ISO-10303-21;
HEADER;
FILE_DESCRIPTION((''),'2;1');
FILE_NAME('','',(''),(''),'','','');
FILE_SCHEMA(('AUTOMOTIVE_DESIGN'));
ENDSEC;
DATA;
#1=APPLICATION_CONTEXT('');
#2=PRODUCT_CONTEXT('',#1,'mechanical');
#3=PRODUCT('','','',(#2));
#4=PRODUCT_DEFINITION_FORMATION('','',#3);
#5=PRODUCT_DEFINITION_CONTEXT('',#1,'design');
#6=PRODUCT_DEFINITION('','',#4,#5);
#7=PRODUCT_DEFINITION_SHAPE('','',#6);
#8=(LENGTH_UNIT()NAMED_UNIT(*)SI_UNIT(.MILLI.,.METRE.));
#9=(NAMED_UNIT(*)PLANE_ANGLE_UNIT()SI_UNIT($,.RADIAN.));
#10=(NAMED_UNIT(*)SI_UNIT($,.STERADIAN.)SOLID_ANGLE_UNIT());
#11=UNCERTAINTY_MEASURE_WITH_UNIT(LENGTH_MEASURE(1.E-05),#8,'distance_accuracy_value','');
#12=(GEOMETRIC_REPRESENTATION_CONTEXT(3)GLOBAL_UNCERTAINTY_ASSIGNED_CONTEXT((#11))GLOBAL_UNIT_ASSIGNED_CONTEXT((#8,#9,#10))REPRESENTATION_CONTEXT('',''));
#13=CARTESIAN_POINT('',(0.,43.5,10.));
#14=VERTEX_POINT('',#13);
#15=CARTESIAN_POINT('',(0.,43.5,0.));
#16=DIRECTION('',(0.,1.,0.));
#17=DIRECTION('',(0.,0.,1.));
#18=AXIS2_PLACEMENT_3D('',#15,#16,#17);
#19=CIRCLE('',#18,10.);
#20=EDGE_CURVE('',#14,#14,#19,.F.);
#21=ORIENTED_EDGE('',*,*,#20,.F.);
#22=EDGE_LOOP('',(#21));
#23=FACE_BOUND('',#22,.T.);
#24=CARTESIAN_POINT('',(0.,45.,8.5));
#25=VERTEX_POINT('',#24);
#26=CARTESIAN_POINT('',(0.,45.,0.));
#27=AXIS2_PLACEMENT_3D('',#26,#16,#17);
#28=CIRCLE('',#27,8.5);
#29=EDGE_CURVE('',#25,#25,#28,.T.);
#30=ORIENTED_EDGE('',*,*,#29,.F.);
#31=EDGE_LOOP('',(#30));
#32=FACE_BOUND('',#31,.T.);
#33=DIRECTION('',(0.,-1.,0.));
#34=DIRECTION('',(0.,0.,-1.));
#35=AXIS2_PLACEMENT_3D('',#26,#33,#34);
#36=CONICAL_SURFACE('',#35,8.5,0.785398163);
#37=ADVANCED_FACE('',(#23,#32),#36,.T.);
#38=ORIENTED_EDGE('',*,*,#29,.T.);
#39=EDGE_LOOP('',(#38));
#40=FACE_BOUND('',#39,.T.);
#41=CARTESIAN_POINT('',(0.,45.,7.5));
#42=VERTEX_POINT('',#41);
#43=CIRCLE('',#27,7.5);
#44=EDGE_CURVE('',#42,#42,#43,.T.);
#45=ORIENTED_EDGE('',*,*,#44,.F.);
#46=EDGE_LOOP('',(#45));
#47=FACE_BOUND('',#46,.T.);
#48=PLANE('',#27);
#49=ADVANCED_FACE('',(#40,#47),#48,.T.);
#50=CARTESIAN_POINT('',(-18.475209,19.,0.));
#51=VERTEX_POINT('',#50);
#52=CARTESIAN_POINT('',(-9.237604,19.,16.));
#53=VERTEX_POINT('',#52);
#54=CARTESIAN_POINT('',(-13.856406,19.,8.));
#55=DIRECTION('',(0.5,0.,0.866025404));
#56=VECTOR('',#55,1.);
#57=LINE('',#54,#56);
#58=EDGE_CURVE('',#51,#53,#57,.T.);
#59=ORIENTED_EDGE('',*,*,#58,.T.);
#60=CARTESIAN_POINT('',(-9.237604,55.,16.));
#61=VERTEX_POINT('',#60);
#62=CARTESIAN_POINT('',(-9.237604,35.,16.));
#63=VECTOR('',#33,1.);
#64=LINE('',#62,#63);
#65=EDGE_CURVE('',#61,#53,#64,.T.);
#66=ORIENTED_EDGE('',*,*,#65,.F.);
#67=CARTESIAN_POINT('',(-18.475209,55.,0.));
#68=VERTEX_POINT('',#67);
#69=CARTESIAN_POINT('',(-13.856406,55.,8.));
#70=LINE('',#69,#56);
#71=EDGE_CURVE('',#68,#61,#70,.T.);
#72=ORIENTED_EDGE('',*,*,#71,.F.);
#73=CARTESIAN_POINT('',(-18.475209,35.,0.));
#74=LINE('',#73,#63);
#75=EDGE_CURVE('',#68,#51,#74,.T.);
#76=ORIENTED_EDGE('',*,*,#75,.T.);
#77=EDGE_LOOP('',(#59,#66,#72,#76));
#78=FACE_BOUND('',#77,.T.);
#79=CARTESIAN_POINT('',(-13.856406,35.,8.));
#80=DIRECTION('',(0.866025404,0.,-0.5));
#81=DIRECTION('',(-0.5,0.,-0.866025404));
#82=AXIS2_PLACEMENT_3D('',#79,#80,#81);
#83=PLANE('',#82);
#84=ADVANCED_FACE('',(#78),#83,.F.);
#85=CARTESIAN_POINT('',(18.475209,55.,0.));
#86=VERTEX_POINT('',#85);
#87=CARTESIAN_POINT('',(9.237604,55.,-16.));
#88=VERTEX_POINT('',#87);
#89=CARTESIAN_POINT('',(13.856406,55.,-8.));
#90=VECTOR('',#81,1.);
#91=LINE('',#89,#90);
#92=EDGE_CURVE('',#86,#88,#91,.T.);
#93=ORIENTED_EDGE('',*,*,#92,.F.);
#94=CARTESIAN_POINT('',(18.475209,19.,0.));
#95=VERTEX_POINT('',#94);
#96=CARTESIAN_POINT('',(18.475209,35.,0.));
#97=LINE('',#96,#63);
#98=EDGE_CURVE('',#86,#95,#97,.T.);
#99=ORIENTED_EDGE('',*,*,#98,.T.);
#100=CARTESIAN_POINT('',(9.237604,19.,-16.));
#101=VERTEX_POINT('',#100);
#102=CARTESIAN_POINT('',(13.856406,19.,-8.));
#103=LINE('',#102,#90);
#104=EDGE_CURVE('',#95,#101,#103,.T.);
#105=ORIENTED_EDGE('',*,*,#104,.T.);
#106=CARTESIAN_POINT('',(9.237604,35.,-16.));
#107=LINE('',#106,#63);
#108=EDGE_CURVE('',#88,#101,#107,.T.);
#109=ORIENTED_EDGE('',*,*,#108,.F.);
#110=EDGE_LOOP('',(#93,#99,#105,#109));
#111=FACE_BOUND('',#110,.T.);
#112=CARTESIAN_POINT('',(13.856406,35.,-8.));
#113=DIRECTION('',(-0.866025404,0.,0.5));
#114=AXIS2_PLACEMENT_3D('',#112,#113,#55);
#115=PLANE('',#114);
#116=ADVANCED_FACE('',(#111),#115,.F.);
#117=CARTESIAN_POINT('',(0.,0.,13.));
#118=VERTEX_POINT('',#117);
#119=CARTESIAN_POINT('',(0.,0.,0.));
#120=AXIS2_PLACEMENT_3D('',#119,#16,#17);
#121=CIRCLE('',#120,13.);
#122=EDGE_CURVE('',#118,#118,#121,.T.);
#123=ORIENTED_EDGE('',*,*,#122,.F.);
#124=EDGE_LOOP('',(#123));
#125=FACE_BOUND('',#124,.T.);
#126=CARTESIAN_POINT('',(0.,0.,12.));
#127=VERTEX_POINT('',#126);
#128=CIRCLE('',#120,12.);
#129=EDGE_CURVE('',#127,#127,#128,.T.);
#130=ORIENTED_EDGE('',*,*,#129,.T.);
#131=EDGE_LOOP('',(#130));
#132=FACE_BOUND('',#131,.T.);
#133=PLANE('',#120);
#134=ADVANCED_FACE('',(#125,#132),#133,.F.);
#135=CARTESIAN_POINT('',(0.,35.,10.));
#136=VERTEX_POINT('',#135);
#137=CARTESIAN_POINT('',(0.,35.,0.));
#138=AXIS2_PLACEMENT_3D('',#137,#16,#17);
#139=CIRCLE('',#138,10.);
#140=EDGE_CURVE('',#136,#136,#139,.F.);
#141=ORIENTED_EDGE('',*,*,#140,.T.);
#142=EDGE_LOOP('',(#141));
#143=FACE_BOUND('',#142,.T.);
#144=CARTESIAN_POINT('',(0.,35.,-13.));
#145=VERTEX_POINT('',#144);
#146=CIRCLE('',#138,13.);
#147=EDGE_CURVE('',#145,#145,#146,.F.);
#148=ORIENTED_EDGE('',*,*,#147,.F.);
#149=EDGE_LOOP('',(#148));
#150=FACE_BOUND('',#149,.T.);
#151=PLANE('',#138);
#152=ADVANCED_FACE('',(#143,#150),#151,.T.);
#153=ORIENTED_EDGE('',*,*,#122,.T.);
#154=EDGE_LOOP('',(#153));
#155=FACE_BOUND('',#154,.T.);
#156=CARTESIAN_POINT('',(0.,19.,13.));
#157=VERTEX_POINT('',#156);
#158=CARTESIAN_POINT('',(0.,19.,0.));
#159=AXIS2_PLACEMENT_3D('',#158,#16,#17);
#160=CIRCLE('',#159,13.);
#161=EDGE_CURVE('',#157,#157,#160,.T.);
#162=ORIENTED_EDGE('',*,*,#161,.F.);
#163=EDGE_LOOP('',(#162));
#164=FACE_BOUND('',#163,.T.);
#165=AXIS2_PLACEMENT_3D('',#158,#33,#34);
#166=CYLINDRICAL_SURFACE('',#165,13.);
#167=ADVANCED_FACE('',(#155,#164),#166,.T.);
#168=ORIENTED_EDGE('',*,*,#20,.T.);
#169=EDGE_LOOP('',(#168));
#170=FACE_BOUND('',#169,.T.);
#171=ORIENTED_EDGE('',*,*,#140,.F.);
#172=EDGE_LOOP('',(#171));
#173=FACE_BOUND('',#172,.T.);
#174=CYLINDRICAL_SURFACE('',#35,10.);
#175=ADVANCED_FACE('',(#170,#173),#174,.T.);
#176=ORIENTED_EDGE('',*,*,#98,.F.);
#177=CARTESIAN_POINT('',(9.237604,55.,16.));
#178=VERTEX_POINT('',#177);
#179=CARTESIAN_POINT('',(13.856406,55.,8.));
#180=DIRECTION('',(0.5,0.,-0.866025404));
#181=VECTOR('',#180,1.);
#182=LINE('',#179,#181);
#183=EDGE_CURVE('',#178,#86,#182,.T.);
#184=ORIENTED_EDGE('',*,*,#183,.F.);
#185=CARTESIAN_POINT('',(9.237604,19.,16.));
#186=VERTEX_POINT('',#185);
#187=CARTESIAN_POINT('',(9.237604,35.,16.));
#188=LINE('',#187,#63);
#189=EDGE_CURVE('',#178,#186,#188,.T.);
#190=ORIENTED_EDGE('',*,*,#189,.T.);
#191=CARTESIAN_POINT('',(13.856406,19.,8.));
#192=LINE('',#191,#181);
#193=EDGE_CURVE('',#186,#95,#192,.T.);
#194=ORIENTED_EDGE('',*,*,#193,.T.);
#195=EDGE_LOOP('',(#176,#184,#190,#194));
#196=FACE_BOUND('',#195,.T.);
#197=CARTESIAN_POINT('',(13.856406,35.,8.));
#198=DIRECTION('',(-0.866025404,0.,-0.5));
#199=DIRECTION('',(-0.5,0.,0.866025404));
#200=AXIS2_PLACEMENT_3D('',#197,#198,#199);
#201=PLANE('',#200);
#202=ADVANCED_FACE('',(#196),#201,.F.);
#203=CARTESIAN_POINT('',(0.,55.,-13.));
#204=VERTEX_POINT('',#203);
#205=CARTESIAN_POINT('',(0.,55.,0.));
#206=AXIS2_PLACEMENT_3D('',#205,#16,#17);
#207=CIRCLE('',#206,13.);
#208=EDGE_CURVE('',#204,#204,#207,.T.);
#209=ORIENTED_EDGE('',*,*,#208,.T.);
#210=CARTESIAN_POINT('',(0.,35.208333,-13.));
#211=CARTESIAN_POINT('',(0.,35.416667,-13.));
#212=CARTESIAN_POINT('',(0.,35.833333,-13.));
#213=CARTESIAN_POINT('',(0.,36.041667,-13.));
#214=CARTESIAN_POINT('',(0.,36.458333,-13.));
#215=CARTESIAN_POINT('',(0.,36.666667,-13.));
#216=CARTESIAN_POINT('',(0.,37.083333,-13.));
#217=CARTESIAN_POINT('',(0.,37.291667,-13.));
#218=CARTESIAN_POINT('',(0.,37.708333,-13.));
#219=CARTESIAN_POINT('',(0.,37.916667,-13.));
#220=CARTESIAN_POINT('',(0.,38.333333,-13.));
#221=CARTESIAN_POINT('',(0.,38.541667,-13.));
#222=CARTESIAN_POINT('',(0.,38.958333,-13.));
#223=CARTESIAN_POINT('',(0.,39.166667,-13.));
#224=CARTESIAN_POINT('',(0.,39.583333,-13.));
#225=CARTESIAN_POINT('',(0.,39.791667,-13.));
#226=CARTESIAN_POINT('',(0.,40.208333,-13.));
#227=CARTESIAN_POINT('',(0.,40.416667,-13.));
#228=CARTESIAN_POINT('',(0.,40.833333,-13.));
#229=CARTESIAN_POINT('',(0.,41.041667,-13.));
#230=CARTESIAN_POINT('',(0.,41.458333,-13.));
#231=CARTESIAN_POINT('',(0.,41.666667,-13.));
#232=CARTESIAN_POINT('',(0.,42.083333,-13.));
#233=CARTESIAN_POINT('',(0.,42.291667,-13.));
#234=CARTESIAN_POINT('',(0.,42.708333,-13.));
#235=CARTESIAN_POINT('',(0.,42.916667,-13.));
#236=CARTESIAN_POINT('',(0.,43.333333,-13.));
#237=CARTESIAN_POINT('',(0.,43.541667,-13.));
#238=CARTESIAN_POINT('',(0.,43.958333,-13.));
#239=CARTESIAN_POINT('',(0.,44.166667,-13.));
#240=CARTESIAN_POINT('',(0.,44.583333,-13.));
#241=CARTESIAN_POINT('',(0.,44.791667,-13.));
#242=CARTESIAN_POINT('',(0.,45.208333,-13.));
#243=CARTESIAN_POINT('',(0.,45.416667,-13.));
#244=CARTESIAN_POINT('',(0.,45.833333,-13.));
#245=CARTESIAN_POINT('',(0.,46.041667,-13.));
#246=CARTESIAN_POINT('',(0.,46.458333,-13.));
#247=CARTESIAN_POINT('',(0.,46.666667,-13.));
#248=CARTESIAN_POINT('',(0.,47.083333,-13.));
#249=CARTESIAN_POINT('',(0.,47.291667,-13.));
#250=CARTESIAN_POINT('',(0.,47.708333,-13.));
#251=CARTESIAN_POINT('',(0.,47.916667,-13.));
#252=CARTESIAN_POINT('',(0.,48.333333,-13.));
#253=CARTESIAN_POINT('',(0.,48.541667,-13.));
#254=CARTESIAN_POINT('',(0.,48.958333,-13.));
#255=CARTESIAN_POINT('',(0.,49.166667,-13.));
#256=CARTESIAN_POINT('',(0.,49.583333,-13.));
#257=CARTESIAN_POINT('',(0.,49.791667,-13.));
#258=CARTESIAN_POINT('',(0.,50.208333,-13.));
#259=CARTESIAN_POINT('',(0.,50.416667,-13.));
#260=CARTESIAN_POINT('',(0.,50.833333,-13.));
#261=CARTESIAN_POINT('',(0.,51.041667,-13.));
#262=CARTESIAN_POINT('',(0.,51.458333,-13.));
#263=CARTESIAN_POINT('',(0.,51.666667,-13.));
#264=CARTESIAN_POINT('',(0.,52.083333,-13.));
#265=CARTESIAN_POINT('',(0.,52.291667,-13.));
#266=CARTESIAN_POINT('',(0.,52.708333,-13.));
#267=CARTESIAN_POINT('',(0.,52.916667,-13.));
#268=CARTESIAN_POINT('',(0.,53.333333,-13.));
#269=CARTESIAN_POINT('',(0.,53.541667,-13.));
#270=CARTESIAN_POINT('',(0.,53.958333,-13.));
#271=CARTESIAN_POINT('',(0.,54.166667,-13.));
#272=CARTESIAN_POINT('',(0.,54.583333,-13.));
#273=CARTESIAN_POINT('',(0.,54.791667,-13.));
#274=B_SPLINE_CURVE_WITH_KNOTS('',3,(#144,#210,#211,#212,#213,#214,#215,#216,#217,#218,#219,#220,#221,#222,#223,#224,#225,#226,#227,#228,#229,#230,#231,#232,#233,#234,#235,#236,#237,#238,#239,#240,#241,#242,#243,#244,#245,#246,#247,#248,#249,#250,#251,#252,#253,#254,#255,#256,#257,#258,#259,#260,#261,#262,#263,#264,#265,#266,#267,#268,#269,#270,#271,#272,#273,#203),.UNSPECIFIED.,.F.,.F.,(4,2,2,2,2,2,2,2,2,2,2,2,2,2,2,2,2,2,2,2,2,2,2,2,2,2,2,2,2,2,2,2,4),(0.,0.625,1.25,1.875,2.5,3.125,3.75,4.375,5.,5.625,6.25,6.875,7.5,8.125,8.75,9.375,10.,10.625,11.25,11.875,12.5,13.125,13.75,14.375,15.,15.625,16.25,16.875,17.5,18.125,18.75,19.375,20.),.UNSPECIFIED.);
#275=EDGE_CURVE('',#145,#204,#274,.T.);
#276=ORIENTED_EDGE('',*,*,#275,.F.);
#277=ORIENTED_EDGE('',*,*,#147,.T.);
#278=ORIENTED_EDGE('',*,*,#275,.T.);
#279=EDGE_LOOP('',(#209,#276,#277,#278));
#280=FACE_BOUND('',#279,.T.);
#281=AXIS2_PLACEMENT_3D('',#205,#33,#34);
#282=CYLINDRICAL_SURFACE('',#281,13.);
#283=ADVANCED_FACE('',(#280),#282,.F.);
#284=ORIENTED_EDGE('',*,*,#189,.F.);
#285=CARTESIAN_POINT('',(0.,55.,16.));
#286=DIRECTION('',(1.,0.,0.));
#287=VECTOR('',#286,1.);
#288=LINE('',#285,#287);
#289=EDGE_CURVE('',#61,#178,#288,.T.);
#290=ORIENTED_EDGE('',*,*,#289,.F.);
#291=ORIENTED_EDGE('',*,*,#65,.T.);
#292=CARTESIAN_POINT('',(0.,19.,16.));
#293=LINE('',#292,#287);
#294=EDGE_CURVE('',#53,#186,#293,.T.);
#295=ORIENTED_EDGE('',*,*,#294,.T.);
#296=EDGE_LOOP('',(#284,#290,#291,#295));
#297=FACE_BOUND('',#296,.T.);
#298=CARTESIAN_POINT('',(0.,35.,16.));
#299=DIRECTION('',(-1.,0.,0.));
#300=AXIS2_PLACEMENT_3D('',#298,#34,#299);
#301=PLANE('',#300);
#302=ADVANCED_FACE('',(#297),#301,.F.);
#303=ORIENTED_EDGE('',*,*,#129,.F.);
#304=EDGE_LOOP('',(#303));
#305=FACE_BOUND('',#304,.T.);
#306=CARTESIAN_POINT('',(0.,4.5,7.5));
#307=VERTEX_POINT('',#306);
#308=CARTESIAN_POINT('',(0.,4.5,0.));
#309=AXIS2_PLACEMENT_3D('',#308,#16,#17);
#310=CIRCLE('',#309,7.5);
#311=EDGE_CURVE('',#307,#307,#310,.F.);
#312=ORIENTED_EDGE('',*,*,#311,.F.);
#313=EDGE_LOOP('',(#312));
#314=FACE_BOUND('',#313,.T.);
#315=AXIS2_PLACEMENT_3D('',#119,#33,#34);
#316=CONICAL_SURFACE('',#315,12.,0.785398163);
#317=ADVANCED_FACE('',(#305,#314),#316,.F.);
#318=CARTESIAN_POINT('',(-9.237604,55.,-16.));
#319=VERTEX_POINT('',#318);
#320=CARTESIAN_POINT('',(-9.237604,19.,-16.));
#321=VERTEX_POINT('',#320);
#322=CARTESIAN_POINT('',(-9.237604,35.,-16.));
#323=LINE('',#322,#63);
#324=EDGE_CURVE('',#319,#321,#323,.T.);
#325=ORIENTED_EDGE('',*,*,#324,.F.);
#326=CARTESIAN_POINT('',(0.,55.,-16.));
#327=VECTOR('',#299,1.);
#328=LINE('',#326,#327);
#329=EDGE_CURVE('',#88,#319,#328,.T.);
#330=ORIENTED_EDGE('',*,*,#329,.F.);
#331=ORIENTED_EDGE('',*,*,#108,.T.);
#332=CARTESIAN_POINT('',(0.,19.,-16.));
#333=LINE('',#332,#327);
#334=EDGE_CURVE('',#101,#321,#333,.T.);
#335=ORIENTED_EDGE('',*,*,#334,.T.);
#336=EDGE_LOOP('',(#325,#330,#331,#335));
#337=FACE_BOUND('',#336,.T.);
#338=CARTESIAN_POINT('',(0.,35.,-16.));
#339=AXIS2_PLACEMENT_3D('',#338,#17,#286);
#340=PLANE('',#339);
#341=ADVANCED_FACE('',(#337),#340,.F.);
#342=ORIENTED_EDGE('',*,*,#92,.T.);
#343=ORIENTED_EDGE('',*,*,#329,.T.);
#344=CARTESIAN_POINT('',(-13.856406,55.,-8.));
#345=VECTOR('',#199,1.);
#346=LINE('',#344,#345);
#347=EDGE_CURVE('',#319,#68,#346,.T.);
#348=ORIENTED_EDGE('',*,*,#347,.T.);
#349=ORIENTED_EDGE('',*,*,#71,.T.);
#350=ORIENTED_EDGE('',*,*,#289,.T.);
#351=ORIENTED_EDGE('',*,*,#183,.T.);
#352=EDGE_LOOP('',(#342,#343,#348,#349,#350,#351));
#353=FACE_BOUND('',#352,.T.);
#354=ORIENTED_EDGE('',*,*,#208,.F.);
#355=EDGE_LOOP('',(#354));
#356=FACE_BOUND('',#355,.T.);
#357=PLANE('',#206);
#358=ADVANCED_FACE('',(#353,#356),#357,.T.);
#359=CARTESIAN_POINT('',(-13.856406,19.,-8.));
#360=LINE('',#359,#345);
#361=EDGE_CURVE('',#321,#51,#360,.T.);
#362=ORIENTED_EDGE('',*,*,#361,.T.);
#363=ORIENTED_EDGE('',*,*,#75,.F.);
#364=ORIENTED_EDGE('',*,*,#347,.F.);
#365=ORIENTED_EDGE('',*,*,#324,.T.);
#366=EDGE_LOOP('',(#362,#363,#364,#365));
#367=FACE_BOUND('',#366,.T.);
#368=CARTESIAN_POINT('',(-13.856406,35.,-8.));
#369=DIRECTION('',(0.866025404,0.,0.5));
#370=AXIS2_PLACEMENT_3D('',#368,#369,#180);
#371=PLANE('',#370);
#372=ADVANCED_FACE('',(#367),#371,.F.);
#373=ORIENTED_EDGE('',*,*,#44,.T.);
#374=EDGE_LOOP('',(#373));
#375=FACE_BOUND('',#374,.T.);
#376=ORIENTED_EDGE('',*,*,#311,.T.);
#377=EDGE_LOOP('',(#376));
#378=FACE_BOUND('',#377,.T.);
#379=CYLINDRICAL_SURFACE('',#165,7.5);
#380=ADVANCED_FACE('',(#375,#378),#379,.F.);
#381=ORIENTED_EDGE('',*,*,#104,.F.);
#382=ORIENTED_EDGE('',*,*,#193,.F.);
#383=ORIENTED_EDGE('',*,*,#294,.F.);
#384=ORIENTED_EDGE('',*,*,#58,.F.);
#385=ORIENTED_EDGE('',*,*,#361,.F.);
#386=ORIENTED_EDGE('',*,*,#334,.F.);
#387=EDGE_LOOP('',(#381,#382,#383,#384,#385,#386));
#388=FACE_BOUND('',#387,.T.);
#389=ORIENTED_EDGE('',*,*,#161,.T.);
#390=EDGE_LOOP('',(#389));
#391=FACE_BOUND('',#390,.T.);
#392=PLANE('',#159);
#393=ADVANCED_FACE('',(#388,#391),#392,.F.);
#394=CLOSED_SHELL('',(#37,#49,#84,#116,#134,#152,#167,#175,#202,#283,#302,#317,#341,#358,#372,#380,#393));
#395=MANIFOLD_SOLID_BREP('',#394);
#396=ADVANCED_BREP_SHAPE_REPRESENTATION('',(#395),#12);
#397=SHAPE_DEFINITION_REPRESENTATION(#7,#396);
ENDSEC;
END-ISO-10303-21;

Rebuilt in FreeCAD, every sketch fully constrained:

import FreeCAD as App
import Part
import Sketcher
from FreeCAD import Vector
Q = App.Units.Quantity


def edges_at(feature, points):
    """Names of the edges that pass closest to the given points."""
    edges = feature.Shape.Edges
    near = lambda p: min(range(len(edges)), key=lambda i: edges[i].distToShape(Part.Vertex(*p))[0])
    return sorted({f"Edge{near(p) + 1}" for p in points})


def add_polygon(sketch, points):
    """Adds a closed chain of lines whose ends are joined by coincident constraints."""
    first, n = sketch.GeometryCount, len(points)
    for a, b in zip(points, points[1:] + points[:1]):
        sketch.addGeometry(Part.LineSegment(App.Vector(*a, 0), App.Vector(*b, 0)), False)
    for i in range(n):
        sketch.addConstraint(Sketcher.Constraint("Coincident", first + i, 2, first + (i + 1) % n, 1))

doc = App.newDocument("Part")
body = doc.addObject("PartDesign::Body", "Body")

# Sketch on XZ plane
sketch1 = body.newObject("Sketcher::SketchObject", "Sketch")
sketch1.AttachmentSupport = (doc.getObject("XZ_Plane"), [""])
sketch1.MapMode = "FlatFace"
sketch1.addGeometry(Part.Circle(Vector(0, 0, 0), Vector(0, 0, 1), 13), False)
sketch1.addGeometry(Part.Circle(Vector(0, 0, 0), Vector(0, 0, 1), 7.5), False)
sketch1.addConstraint(Sketcher.Constraint("Coincident", 0, 3, -1, 1))
sketch1.addConstraint(Sketcher.Constraint("Coincident", 1, 3, -1, 1))
sketch1.addConstraint(Sketcher.Constraint("Diameter", 0, 26.0))
sketch1.addConstraint(Sketcher.Constraint("Diameter", 1, 15.0))
pad1 = body.newObject("PartDesign::Pad", "Pad")
pad1.Profile = sketch1
pad1.Length = 19
pad1.Reversed = True
doc.recompute()

chamfer = body.newObject("PartDesign::Chamfer", "Chamfer")
chamfer.Base = (pad1, edges_at(pad1, [(0, 0, -7.5)]))
chamfer.Size = 4.5

# Sketch on XZ plane
sketch2 = body.newObject("Sketcher::SketchObject", "Sketch001")
sketch2.AttachmentSupport = (doc.getObject("XZ_Plane"), [""])
sketch2.MapMode = "FlatFace"
sketch2.AttachmentOffset = App.Placement(Vector(0, 0, -19), App.Rotation())
add_polygon(sketch2, [(18.475209, 0), (13.856406, -8), (9.237604, -16), (-9.237604, -16), (-13.856406, -8), (-18.475209, 0), (-13.856406, 8), (-9.237604, 16), (9.237604, 16), (13.856406, 8)])  # lines 0-9
sketch2.addGeometry(Part.Circle(Vector(0, 0, 0), Vector(0, 0, 1), 7.5), False)  # 10
sketch2.addConstraint(Sketcher.Constraint("Horizontal", 2))
sketch2.addConstraint(Sketcher.Constraint("Horizontal", 7))
sketch2.addConstraint(Sketcher.Constraint("Coincident", 10, 3, -1, 1))
sketch2.addConstraint(Sketcher.Constraint("Symmetric", 0, 2, 5, 2, -1, 1))
sketch2.addConstraint(Sketcher.Constraint("Symmetric", 1, 2, 6, 2, -1, 1))
sketch2.addConstraint(Sketcher.Constraint("Symmetric", 3, 2, 8, 2, -1, 1))
sketch2.addConstraint(Sketcher.Constraint("Symmetric", 4, 2, 9, 2, -1, 1))
sketch2.addConstraint(Sketcher.Constraint("Symmetric", 0, 2, 3, 2, -2))
sketch2.addConstraint(Sketcher.Constraint("PointOnObject", 4, 2, -1))
sketch2.addConstraint(Sketcher.Constraint("Parallel", 0, 1))
sketch2.addConstraint(Sketcher.Constraint("Parallel", 3, 4))
sketch2.addConstraint(Sketcher.Constraint("Parallel", 4, 8))
sketch2.addConstraint(Sketcher.Constraint("Equal", 0, 1))
sketch2.addConstraint(Sketcher.Constraint("Diameter", 10, 15.0))
sketch2.addConstraint(Sketcher.Constraint("Angle", 0, Q("-120 deg")))
sketch2.addConstraint(Sketcher.Constraint("DistanceY", 0, 2, -1, 1, 8.0))
sketch2.addConstraint(Sketcher.Constraint("DistanceX", 2, 2, 2, 1, 18.475209))
pad2 = body.newObject("PartDesign::Pad", "Pad001")
pad2.Profile = sketch2
pad2.Length = 16
pad2.Reversed = True

# Sketch on XZ plane
sketch3 = body.newObject("Sketcher::SketchObject", "Sketch002")
sketch3.AttachmentSupport = (doc.getObject("XZ_Plane"), [""])
sketch3.MapMode = "FlatFace"
sketch3.AttachmentOffset = App.Placement(Vector(0, 0, -29), App.Rotation())
add_polygon(sketch3, [(-9.237604, -16), (-13.856406, -8), (-18.475209, 0), (-13.856406, 8), (-9.237604, 16), (9.237604, 16), (13.856406, 8.000001), (18.475209, 0), (13.856406, -8.000001), (9.237604, -16)])  # lines 0-9
sketch3.addGeometry(Part.Circle(Vector(0, 0, 0), Vector(0, 0, 1), 13), False)  # 10
sketch3.addConstraint(Sketcher.Constraint("Horizontal", 4))
sketch3.addConstraint(Sketcher.Constraint("Horizontal", 9))
sketch3.addConstraint(Sketcher.Constraint("Coincident", 10, 3, -1, 1))
sketch3.addConstraint(Sketcher.Constraint("Symmetric", 0, 2, 5, 2, -1, 1))
sketch3.addConstraint(Sketcher.Constraint("Symmetric", 1, 2, 6, 2, -1, 1))
sketch3.addConstraint(Sketcher.Constraint("Symmetric", 2, 2, 7, 2, -1, 1))
sketch3.addConstraint(Sketcher.Constraint("Symmetric", 3, 2, 8, 2, -1, 1))
sketch3.addConstraint(Sketcher.Constraint("Symmetric", 2, 2, 5, 2, -2))
sketch3.addConstraint(Sketcher.Constraint("PointOnObject", 1, 2, -1))
sketch3.addConstraint(Sketcher.Constraint("Parallel", 0, 1))
sketch3.addConstraint(Sketcher.Constraint("Parallel", 2, 3))
sketch3.addConstraint(Sketcher.Constraint("Parallel", 1, 5))
sketch3.addConstraint(Sketcher.Constraint("Equal", 0, 1))
sketch3.addConstraint(Sketcher.Constraint("Diameter", 10, 26.0))
sketch3.addConstraint(Sketcher.Constraint("Angle", 0, Q("120 deg")))
sketch3.addConstraint(Sketcher.Constraint("DistanceY", 0, 2, -1, 1, 8.0))
sketch3.addConstraint(Sketcher.Constraint("DistanceX", 4, 1, 4, 2, 18.475209))
pad3 = body.newObject("PartDesign::Pad", "Pad002")
pad3.Profile = sketch3
pad3.Length = 26
pad3.Reversed = True

# Sketch on XZ plane
sketch4 = body.newObject("Sketcher::SketchObject", "Sketch003")
sketch4.AttachmentSupport = (doc.getObject("XZ_Plane"), [""])
sketch4.MapMode = "FlatFace"
sketch4.AttachmentOffset = App.Placement(Vector(0, 0, -29), App.Rotation())
sketch4.addGeometry(Part.Circle(Vector(0, 0, 0), Vector(0, 0, 1), 10), False)
sketch4.addGeometry(Part.Circle(Vector(0, 0, 0), Vector(0, 0, 1), 7.5), False)
sketch4.addConstraint(Sketcher.Constraint("Coincident", 0, 3, -1, 1))
sketch4.addConstraint(Sketcher.Constraint("Coincident", 1, 3, -1, 1))
sketch4.addConstraint(Sketcher.Constraint("Diameter", 0, 20.0))
sketch4.addConstraint(Sketcher.Constraint("Diameter", 1, 15.0))
pad4 = body.newObject("PartDesign::Pad", "Pad003")
pad4.Profile = sketch4
pad4.Length = 16
pad4.Reversed = True
doc.recompute()

chamfer2 = body.newObject("PartDesign::Chamfer", "Chamfer001")
chamfer2.Base = (pad4, edges_at(pad4, [(0, 45, -10)]))
chamfer2.Size = 1.5

doc.recompute()
